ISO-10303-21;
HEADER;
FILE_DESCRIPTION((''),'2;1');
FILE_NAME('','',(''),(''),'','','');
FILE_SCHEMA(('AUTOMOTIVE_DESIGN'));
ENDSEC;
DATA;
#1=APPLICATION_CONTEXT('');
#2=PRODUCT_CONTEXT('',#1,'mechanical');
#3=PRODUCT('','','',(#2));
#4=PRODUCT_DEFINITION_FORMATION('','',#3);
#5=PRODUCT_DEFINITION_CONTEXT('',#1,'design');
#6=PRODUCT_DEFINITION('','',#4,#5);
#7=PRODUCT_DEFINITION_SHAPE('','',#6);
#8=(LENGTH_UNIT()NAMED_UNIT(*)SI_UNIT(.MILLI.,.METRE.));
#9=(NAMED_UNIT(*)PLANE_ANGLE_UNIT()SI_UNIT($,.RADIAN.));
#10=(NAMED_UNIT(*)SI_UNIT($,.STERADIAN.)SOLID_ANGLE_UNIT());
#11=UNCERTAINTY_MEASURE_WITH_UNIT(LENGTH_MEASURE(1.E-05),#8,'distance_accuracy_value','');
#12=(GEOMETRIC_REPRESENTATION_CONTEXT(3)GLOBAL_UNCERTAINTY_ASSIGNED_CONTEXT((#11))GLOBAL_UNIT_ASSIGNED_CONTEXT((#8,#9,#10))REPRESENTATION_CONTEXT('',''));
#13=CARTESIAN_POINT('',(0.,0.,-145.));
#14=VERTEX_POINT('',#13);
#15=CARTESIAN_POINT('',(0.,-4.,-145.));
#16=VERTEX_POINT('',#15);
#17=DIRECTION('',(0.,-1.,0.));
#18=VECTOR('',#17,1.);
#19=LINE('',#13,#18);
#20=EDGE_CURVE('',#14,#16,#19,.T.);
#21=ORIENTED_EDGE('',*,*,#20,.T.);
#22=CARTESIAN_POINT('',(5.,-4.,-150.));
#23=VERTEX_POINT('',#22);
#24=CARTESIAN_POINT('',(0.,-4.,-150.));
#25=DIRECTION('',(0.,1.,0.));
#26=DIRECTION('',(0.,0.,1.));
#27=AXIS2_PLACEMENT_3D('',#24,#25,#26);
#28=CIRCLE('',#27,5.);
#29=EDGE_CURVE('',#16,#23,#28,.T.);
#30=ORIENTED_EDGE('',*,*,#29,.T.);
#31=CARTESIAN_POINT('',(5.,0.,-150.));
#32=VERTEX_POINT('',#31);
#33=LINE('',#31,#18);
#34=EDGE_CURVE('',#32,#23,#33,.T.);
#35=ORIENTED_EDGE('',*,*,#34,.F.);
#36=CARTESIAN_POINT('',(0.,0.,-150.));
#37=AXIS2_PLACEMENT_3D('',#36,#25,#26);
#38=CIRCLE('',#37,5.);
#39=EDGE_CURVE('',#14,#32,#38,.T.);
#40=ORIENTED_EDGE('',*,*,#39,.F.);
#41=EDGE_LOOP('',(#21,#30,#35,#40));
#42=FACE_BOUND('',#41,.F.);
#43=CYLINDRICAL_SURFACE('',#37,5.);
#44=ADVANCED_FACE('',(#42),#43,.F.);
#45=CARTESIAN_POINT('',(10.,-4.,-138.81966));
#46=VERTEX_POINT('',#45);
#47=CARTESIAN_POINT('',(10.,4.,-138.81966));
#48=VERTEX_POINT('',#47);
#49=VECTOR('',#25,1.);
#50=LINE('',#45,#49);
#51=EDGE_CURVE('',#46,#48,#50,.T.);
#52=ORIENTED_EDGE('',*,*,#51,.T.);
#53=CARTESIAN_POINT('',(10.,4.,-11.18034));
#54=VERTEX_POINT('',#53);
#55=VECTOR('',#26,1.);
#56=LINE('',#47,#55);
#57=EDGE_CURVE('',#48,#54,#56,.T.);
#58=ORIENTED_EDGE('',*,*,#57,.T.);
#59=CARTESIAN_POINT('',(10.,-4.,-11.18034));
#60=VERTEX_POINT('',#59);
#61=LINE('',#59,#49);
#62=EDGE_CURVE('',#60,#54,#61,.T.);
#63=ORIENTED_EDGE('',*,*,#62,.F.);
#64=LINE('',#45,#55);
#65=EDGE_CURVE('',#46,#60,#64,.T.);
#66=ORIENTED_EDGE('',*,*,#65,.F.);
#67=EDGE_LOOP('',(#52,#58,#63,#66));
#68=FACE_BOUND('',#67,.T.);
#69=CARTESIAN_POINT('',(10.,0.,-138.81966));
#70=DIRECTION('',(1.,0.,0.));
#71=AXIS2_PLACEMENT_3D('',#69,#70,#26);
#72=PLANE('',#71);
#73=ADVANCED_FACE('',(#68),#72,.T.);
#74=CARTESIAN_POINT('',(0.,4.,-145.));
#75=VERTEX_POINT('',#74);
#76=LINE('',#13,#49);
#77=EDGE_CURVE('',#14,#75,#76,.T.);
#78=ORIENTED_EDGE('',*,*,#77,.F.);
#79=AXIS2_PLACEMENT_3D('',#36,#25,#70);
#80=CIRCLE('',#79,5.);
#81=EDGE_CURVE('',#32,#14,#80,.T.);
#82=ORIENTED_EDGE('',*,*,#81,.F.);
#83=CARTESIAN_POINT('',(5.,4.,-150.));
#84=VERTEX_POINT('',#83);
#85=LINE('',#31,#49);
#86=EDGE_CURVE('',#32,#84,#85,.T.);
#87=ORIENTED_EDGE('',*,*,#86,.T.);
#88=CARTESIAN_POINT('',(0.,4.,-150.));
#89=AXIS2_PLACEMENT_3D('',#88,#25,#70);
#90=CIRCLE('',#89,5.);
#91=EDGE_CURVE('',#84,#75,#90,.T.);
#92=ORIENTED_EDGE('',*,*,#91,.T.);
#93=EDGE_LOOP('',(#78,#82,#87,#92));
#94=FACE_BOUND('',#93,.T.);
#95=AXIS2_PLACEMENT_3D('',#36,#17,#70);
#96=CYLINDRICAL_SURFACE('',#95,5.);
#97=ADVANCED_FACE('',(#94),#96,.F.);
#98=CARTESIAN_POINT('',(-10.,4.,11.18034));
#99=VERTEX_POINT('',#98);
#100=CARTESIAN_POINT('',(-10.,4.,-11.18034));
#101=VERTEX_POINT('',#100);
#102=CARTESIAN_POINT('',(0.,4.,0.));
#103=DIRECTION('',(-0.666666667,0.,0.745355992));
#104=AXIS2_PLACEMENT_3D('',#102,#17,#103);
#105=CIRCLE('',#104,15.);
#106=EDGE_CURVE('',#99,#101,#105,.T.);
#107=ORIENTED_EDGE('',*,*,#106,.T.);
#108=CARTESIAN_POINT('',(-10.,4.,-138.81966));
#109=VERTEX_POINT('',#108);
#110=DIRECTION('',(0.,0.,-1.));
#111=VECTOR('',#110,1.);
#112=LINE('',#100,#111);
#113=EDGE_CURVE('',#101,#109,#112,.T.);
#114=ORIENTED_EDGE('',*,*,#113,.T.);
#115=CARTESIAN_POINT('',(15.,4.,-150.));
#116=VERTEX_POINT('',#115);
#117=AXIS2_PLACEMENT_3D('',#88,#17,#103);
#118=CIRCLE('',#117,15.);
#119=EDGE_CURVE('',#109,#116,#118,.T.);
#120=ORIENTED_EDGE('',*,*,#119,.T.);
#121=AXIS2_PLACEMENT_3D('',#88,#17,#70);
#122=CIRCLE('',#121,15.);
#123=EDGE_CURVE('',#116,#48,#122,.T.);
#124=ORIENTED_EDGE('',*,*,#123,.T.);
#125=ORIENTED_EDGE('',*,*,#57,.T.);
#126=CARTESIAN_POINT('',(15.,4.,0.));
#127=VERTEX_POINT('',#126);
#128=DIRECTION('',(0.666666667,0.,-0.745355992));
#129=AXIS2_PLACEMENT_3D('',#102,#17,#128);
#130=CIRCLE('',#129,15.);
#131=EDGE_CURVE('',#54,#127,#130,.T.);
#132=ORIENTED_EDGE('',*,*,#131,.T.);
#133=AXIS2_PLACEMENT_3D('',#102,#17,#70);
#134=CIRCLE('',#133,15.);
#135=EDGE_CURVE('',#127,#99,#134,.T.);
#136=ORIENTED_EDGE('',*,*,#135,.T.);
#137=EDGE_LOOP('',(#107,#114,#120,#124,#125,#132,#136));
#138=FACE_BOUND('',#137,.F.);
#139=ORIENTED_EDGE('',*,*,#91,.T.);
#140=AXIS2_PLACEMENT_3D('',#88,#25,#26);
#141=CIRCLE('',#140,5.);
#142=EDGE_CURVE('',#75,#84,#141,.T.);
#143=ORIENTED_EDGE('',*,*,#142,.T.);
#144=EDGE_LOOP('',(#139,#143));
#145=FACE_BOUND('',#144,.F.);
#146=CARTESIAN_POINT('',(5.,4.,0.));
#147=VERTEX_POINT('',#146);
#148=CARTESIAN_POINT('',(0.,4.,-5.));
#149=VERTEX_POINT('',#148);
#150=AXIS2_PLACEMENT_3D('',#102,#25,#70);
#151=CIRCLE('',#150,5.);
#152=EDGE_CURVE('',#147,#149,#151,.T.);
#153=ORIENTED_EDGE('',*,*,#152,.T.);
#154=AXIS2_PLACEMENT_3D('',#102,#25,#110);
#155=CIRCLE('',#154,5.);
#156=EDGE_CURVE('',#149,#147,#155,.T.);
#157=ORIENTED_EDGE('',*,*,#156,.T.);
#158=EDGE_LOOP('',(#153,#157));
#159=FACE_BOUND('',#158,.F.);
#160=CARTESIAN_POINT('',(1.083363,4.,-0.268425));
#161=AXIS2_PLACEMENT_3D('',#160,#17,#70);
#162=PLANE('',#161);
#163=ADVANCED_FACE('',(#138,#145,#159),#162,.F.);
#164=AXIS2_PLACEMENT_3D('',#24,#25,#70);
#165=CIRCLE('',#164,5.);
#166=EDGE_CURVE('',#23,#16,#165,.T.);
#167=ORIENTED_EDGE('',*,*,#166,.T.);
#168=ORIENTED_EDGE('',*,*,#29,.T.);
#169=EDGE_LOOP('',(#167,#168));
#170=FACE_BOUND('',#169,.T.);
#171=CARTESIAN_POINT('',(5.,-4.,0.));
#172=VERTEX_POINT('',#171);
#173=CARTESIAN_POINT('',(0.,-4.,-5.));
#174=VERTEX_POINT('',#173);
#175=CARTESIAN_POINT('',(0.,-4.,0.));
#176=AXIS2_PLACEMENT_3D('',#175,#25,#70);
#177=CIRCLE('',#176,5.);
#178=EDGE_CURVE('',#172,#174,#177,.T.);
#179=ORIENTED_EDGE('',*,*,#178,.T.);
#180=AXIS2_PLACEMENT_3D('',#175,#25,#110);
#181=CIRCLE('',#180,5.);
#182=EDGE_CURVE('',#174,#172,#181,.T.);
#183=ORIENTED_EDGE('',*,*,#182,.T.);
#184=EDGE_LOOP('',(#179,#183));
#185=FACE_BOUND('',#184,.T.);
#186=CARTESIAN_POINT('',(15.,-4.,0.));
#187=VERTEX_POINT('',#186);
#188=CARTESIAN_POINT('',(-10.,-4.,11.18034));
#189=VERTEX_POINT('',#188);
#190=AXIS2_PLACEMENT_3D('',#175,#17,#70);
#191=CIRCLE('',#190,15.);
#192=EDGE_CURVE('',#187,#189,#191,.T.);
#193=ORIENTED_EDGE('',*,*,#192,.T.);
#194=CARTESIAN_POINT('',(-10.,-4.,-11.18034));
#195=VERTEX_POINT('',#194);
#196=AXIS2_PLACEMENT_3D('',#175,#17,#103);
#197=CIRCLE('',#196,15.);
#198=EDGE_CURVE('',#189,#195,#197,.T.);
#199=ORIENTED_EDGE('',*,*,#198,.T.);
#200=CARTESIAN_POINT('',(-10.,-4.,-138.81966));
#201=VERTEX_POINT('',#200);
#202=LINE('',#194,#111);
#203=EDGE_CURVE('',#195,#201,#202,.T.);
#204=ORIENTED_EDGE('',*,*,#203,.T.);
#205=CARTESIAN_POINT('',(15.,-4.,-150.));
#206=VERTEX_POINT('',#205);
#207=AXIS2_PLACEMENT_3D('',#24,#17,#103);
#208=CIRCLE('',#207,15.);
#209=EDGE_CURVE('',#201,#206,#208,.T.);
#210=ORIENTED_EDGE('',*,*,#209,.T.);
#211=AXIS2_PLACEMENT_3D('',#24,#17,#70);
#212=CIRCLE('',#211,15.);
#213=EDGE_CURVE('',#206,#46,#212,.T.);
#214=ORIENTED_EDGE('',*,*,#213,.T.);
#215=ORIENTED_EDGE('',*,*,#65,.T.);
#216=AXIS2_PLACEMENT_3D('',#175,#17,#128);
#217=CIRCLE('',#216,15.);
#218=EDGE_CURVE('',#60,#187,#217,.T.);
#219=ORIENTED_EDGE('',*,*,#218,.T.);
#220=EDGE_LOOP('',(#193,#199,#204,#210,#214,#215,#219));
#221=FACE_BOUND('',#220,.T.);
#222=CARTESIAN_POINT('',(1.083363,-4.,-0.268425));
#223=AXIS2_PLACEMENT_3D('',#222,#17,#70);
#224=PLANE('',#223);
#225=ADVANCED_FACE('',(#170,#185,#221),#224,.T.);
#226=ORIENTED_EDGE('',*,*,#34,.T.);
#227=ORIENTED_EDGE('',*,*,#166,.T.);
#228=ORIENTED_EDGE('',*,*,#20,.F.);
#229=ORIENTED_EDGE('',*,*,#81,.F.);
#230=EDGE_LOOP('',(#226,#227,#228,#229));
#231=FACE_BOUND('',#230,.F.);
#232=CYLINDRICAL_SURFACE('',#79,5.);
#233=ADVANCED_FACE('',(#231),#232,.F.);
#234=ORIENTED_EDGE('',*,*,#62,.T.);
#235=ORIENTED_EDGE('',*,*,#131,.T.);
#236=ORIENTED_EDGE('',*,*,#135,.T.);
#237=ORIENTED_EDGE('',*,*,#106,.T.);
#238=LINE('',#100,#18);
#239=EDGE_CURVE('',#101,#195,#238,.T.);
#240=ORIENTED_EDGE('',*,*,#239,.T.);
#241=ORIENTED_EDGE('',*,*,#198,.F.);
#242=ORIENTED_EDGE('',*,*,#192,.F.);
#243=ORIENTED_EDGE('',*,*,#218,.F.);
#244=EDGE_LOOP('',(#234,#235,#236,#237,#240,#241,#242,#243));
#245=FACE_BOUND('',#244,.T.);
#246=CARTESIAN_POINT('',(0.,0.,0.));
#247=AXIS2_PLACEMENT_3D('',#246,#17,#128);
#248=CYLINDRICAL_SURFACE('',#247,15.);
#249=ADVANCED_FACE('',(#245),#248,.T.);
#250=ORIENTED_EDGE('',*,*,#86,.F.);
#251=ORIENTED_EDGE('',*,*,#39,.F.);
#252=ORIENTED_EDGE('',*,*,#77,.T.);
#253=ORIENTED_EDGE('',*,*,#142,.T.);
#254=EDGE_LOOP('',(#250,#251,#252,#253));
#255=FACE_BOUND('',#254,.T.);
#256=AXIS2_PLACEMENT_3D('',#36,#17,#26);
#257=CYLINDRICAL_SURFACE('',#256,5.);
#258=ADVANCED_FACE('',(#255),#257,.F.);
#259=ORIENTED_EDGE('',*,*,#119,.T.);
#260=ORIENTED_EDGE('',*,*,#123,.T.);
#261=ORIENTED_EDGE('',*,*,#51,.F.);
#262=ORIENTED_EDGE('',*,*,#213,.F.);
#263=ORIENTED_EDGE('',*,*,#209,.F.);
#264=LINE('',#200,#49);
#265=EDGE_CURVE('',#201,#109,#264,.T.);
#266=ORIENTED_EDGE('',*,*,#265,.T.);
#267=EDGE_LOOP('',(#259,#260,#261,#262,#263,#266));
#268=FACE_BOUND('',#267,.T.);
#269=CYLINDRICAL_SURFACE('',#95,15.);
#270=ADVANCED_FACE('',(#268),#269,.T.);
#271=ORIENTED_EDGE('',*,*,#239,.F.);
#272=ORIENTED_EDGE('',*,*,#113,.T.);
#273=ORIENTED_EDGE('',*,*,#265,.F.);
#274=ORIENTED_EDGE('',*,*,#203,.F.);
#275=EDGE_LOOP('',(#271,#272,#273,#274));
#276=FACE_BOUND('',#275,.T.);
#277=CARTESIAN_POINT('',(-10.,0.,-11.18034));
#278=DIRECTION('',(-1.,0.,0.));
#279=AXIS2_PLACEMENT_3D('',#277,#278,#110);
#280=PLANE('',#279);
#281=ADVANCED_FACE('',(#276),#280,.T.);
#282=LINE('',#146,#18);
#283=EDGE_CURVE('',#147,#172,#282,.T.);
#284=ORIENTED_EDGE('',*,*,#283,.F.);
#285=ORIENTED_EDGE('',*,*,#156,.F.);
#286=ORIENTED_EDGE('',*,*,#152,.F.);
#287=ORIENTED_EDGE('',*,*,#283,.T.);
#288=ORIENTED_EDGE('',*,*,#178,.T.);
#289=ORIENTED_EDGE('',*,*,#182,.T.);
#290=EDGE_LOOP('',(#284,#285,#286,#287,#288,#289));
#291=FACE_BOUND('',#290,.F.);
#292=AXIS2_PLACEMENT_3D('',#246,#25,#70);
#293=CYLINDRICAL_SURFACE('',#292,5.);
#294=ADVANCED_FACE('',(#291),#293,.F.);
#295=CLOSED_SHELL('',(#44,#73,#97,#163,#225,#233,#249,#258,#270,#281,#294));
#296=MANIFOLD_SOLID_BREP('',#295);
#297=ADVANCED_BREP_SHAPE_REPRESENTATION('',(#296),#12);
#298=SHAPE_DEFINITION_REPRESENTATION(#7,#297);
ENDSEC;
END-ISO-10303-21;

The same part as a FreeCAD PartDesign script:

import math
import FreeCAD as App
import Part
import Sketcher

V = App.Vector

doc = App.newDocument("Part")
body = doc.addObject("PartDesign::Body", "Body")

# Sketch on XZ plane
sketch1 = doc.addObject("Sketcher::SketchObject", "Sketch")
body.addObject(sketch1)
sketch1.AttachmentSupport = (doc.XZ_Plane, [""])
sketch1.MapMode = "FlatFace"
sketch1.addGeometry([
    Part.ArcOfCircle(Part.Circle(V(0, 0, 0), V(0, 0, 1), 15), math.radians(-48), math.radians(0)),  # 0
    Part.ArcOfCircle(Part.Circle(V(0, 0, 0), V(0, 0, 1), 15), math.radians(0), math.radians(132)),  # 1
    Part.ArcOfCircle(Part.Circle(V(0, 0, 0), V(0, 0, 1), 15), math.radians(132), math.radians(228)),  # 2
    Part.LineSegment(V(-10, -11, 0), V(-10, -139, 0)),  # 3
    Part.ArcOfCircle(Part.Circle(V(0, -150, 0), V(0, 0, 1), 15), math.radians(132), math.radians(360)),  # 4
    Part.ArcOfCircle(Part.Circle(V(0, -150, 0), V(0, 0, 1), 15), math.radians(0), math.radians(48)),  # 5
    Part.LineSegment(V(10, -139, 0), V(10, -11, 0)),  # 6
    Part.ArcOfCircle(Part.Circle(V(0, -150, 0), V(0, 0, 1), 5), math.radians(0), math.radians(90)),  # 7
    Part.ArcOfCircle(Part.Circle(V(0, -150, 0), V(0, 0, 1), 5), math.radians(90), math.radians(360)),  # 8
    Part.ArcOfCircle(Part.Circle(V(0, 0, 0), V(0, 0, 1), 5), math.radians(0), math.radians(270)),  # 9
    Part.ArcOfCircle(Part.Circle(V(0, 0, 0), V(0, 0, 1), 5), math.radians(-90), math.radians(0)),  # 10
], False)
sketch1.addConstraint([
    Sketcher.Constraint("Tangent", 0, 2, 1, 1),
    Sketcher.Constraint("Tangent", 1, 2, 2, 1),
    Sketcher.Constraint("Coincident", 2, 2, 3, 1),
    Sketcher.Constraint("Coincident", 3, 2, 4, 1),
    Sketcher.Constraint("Tangent", 4, 2, 5, 1),
    Sketcher.Constraint("Coincident", 5, 2, 6, 1),
    Sketcher.Constraint("Coincident", 6, 2, 0, 1),
    Sketcher.Constraint("Tangent", 7, 1, 8, 2),
    Sketcher.Constraint("Coincident", 8, 1, 7, 2),
    Sketcher.Constraint("Tangent", 9, 1, 10, 2),
    Sketcher.Constraint("Coincident", 10, 1, 9, 2),
    Sketcher.Constraint("Vertical", 3),
    Sketcher.Constraint("Vertical", 6),
    Sketcher.Constraint("Coincident", 0, 3, -1, 1),
    Sketcher.Constraint("Coincident", 2, 3, -1, 1),
    Sketcher.Constraint("Coincident", 9, 3, -1, 1),
    Sketcher.Constraint("Coincident", 7, 3, 4, 3),
    Sketcher.Constraint("Equal", 2, 4),
    Sketcher.Constraint("Equal", 4, 5),
    Sketcher.Constraint("Equal", 8, 9),
    Sketcher.Constraint("Symmetric", 3, 2, 5, 2, -2),
    Sketcher.Constraint("PointOnObject", 0, 2, -1),
    Sketcher.Constraint("PointOnObject", 8, 1, -2),
    Sketcher.Constraint("PointOnObject", 9, 1, -1),
    Sketcher.Constraint("PointOnObject", 10, 1, -2),
    Sketcher.Constraint("Horizontal", 8, 3, 4, 2),
    Sketcher.Constraint("Horizontal", 4, 2, 7, 1),
    Sketcher.Constraint("Vertical", 1, 2, 2, 2),
    Sketcher.Constraint("Radius", 0, 15.0),
    Sketcher.Constraint("Radius", 7, 5.0),
    Sketcher.Constraint("DistanceY", 4, 3, -1, 1, 150.0),
    Sketcher.Constraint("DistanceX", 1, 2, -1, 1, 10.0),
])
pad1 = doc.addObject("PartDesign::Pad", "Pad")
body.addObject(pad1)
pad1.Profile = sketch1
pad1.Length = 8
pad1.Midplane = True

doc.recompute()
